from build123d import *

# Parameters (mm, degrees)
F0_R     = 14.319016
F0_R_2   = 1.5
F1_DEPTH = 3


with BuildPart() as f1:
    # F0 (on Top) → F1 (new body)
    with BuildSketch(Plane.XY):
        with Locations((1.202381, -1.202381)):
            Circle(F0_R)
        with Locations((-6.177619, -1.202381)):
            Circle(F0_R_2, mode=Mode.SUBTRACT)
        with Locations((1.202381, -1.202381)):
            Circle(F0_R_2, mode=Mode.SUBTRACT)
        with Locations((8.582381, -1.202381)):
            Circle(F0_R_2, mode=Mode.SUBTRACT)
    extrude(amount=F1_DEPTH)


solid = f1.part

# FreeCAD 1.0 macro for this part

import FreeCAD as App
import Part
import Sketcher

doc = App.newDocument("Part")
body = doc.addObject("PartDesign::Body", "Body")

sketch1 = body.newObject("Sketcher::SketchObject", "Sketch")
sketch1.AttachmentSupport = (doc.getObject("XY_Plane"), [""])
sketch1.MapMode = "FlatFace"
sketch1.addGeometry(Part.Circle(App.Vector(1.202381, -1.202381, 0), App.Vector(0, 0, 1), 14.319016), False)
sketch1.addGeometry(Part.Circle(App.Vector(-6.177619, -1.202381, 0), App.Vector(0, 0, 1), 1.5), False)
sketch1.addGeometry(Part.Circle(App.Vector(1.202381, -1.202381, 0), App.Vector(0, 0, 1), 1.5), False)
sketch1.addGeometry(Part.Circle(App.Vector(8.582381, -1.202381, 0), App.Vector(0, 0, 1), 1.5), False)
sketch1.addConstraint(Sketcher.Constraint("Coincident", 2, 3, 0, 3))
sketch1.addConstraint(Sketcher.Constraint("Equal", 1, 2))
sketch1.addConstraint(Sketcher.Constraint("Equal", 2, 3))
sketch1.addConstraint(Sketcher.Constraint("Horizontal", 0, 3, 1, 3))
sketch1.addConstraint(Sketcher.Constraint("Horizontal", 2, 3, 3, 3))
sketch1.addConstraint(Sketcher.Constraint("Diameter", 1, 3.0))
sketch1.addConstraint(Sketcher.Constraint("Diameter", 0, 28.638032))
sketch1.addConstraint(Sketcher.Constraint("DistanceX", 1, 3, 0, 3, 7.38))
sketch1.addConstraint(Sketcher.Constraint("DistanceX", 0, 3, 3, 3, 7.38))
sketch1.addConstraint(Sketcher.Constraint("DistanceX", -1, 1, 0, 3, 1.202381))
sketch1.addConstraint(Sketcher.Constraint("DistanceY", 0, 3, -1, 1, 1.202381))
pad1 = body.newObject("PartDesign::Pad", "Pad")
pad1.Profile = sketch1
pad1.Length = 3

doc.recompute()
